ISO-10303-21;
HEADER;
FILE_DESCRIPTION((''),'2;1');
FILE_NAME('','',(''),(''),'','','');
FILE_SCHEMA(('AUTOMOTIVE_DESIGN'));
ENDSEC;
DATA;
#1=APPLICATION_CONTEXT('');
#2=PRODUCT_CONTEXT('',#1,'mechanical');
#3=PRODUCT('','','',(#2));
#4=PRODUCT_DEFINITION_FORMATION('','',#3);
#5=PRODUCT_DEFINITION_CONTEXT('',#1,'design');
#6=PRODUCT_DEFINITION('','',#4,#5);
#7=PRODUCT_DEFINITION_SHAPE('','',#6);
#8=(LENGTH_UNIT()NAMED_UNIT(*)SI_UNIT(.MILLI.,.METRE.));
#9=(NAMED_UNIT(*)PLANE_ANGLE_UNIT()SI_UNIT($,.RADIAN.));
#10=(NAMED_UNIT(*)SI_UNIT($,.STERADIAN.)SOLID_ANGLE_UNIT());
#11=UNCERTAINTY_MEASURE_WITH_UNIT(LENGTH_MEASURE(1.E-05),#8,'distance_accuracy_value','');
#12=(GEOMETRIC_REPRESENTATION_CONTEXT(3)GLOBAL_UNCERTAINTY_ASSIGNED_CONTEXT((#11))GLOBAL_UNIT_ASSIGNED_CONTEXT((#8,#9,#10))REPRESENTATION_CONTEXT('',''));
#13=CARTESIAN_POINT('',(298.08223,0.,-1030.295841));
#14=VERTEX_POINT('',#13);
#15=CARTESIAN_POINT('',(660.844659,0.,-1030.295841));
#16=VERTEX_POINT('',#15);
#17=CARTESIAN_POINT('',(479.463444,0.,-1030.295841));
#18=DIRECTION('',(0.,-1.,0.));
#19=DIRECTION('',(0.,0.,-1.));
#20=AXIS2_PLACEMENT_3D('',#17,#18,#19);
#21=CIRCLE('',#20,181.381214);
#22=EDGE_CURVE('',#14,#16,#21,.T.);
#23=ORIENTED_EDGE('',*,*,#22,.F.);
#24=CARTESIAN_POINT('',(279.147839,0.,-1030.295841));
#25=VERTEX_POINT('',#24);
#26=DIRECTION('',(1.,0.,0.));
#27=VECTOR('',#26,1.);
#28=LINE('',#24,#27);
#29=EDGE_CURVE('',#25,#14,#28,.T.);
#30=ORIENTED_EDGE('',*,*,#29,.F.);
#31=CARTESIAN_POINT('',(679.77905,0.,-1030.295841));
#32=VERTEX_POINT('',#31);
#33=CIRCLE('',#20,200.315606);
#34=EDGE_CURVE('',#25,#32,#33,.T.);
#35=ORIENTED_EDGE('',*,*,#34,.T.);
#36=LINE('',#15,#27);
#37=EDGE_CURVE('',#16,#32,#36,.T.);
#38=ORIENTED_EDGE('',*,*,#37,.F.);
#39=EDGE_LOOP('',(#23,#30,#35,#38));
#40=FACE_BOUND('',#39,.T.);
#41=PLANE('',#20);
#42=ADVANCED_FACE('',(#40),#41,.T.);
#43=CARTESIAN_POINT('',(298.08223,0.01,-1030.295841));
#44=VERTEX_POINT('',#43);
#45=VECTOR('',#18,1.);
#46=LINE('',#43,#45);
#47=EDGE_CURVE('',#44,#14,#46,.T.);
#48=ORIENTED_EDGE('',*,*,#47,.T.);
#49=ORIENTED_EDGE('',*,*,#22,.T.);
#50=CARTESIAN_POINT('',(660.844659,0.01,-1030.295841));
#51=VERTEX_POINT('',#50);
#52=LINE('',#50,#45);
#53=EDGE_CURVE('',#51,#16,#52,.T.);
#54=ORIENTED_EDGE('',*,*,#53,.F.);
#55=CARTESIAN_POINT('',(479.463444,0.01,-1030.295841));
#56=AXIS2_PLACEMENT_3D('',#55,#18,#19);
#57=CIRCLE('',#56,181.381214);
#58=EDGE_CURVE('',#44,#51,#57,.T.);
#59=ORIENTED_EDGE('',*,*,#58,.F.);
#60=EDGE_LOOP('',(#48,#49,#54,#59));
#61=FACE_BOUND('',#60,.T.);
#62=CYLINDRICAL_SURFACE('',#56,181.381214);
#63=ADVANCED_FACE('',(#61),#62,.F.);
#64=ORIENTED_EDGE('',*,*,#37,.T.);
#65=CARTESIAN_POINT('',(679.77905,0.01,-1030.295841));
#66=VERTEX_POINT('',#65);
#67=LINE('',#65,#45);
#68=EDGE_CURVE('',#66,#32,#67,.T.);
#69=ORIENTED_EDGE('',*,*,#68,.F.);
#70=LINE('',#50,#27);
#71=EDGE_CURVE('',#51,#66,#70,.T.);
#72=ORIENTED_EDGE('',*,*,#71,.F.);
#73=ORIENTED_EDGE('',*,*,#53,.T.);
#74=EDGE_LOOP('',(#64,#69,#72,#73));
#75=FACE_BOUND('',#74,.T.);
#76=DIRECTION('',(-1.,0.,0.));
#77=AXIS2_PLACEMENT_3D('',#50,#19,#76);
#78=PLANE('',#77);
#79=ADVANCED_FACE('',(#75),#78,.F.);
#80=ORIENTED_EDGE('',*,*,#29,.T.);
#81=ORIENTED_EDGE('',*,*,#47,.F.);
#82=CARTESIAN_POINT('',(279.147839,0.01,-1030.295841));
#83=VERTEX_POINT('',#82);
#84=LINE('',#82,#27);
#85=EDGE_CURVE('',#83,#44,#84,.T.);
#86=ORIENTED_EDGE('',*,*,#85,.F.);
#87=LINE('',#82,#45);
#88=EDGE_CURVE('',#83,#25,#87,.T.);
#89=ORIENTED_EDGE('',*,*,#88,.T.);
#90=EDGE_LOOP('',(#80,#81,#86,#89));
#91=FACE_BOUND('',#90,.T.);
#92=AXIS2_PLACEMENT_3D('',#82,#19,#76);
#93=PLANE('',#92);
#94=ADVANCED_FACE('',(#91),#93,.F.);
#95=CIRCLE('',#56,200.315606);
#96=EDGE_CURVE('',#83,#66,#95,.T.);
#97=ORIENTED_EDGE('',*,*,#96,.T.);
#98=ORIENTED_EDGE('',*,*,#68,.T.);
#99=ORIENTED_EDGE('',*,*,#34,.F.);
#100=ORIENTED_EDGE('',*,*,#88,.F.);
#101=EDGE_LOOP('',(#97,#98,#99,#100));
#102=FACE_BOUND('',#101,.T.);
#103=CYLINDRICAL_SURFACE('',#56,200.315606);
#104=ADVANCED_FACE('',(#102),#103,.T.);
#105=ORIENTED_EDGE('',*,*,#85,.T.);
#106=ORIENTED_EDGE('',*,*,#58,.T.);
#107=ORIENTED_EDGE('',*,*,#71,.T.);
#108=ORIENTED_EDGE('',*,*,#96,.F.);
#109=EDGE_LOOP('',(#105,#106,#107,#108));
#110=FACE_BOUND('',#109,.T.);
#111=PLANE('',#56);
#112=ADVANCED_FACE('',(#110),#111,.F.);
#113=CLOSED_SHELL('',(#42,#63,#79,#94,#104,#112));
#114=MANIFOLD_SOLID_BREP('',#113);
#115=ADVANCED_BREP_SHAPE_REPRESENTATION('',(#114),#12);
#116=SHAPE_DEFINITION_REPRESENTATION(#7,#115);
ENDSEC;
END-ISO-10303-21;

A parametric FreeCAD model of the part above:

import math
import FreeCAD as App
import Part
import Sketcher

doc = App.newDocument("Part")
body = doc.addObject("PartDesign::Body", "Body")

# Sketch on XZ plane
sketch1 = body.newObject("Sketcher::SketchObject", "Sketch")
sketch1.AttachmentSupport = (doc.getObject("XZ_Plane"), [""])
sketch1.MapMode = "FlatFace"
sketch1.addGeometry(Part.LineSegment(App.Vector(661, -1030, 0), App.Vector(680, -1030, 0)), False)
sketch1.addGeometry(Part.ArcOfCircle(Part.Circle(App.Vector(479, -1030, 0), App.Vector(0, 0, 1), 200), math.radians(180), math.radians(360)), False)
sketch1.addGeometry(Part.LineSegment(App.Vector(279, -1030, 0), App.Vector(298, -1030, 0)), False)
sketch1.addGeometry(Part.ArcOfCircle(Part.Circle(App.Vector(479, -1030, 0), App.Vector(0, 0, 1), 181), math.radians(180), math.radians(360)), False)
sketch1.addConstraint(Sketcher.Constraint("Coincident", 0, 2, 1, 2))
sketch1.addConstraint(Sketcher.Constraint("Coincident", 1, 1, 2, 1))
sketch1.addConstraint(Sketcher.Constraint("Coincident", 2, 2, 3, 1))
sketch1.addConstraint(Sketcher.Constraint("Coincident", 3, 2, 0, 1))
sketch1.addConstraint(Sketcher.Constraint("Horizontal", 0))
sketch1.addConstraint(Sketcher.Constraint("Horizontal", 2))
sketch1.addConstraint(Sketcher.Constraint("Coincident", 3, 3, 1, 3))
sketch1.addConstraint(Sketcher.Constraint("Horizontal", 3, 3, 0, 2))
sketch1.addConstraint(Sketcher.Constraint("Horizontal", 0, 2, 1, 1))
sketch1.addConstraint(Sketcher.Constraint("Radius", 1, 200.315606))
sketch1.addConstraint(Sketcher.Constraint("Radius", 3, 181.381214))
sketch1.addConstraint(Sketcher.Constraint("DistanceY", 1, 3, -1, 1, 1030.295841))
sketch1.addConstraint(Sketcher.Constraint("DistanceX", -1, 1, 0, 2, 679.77905))
pad1 = body.newObject("PartDesign::Pad", "Pad")
pad1.Profile = sketch1
pad1.Length = 0.01
pad1.Reversed = True

doc.recompute()
